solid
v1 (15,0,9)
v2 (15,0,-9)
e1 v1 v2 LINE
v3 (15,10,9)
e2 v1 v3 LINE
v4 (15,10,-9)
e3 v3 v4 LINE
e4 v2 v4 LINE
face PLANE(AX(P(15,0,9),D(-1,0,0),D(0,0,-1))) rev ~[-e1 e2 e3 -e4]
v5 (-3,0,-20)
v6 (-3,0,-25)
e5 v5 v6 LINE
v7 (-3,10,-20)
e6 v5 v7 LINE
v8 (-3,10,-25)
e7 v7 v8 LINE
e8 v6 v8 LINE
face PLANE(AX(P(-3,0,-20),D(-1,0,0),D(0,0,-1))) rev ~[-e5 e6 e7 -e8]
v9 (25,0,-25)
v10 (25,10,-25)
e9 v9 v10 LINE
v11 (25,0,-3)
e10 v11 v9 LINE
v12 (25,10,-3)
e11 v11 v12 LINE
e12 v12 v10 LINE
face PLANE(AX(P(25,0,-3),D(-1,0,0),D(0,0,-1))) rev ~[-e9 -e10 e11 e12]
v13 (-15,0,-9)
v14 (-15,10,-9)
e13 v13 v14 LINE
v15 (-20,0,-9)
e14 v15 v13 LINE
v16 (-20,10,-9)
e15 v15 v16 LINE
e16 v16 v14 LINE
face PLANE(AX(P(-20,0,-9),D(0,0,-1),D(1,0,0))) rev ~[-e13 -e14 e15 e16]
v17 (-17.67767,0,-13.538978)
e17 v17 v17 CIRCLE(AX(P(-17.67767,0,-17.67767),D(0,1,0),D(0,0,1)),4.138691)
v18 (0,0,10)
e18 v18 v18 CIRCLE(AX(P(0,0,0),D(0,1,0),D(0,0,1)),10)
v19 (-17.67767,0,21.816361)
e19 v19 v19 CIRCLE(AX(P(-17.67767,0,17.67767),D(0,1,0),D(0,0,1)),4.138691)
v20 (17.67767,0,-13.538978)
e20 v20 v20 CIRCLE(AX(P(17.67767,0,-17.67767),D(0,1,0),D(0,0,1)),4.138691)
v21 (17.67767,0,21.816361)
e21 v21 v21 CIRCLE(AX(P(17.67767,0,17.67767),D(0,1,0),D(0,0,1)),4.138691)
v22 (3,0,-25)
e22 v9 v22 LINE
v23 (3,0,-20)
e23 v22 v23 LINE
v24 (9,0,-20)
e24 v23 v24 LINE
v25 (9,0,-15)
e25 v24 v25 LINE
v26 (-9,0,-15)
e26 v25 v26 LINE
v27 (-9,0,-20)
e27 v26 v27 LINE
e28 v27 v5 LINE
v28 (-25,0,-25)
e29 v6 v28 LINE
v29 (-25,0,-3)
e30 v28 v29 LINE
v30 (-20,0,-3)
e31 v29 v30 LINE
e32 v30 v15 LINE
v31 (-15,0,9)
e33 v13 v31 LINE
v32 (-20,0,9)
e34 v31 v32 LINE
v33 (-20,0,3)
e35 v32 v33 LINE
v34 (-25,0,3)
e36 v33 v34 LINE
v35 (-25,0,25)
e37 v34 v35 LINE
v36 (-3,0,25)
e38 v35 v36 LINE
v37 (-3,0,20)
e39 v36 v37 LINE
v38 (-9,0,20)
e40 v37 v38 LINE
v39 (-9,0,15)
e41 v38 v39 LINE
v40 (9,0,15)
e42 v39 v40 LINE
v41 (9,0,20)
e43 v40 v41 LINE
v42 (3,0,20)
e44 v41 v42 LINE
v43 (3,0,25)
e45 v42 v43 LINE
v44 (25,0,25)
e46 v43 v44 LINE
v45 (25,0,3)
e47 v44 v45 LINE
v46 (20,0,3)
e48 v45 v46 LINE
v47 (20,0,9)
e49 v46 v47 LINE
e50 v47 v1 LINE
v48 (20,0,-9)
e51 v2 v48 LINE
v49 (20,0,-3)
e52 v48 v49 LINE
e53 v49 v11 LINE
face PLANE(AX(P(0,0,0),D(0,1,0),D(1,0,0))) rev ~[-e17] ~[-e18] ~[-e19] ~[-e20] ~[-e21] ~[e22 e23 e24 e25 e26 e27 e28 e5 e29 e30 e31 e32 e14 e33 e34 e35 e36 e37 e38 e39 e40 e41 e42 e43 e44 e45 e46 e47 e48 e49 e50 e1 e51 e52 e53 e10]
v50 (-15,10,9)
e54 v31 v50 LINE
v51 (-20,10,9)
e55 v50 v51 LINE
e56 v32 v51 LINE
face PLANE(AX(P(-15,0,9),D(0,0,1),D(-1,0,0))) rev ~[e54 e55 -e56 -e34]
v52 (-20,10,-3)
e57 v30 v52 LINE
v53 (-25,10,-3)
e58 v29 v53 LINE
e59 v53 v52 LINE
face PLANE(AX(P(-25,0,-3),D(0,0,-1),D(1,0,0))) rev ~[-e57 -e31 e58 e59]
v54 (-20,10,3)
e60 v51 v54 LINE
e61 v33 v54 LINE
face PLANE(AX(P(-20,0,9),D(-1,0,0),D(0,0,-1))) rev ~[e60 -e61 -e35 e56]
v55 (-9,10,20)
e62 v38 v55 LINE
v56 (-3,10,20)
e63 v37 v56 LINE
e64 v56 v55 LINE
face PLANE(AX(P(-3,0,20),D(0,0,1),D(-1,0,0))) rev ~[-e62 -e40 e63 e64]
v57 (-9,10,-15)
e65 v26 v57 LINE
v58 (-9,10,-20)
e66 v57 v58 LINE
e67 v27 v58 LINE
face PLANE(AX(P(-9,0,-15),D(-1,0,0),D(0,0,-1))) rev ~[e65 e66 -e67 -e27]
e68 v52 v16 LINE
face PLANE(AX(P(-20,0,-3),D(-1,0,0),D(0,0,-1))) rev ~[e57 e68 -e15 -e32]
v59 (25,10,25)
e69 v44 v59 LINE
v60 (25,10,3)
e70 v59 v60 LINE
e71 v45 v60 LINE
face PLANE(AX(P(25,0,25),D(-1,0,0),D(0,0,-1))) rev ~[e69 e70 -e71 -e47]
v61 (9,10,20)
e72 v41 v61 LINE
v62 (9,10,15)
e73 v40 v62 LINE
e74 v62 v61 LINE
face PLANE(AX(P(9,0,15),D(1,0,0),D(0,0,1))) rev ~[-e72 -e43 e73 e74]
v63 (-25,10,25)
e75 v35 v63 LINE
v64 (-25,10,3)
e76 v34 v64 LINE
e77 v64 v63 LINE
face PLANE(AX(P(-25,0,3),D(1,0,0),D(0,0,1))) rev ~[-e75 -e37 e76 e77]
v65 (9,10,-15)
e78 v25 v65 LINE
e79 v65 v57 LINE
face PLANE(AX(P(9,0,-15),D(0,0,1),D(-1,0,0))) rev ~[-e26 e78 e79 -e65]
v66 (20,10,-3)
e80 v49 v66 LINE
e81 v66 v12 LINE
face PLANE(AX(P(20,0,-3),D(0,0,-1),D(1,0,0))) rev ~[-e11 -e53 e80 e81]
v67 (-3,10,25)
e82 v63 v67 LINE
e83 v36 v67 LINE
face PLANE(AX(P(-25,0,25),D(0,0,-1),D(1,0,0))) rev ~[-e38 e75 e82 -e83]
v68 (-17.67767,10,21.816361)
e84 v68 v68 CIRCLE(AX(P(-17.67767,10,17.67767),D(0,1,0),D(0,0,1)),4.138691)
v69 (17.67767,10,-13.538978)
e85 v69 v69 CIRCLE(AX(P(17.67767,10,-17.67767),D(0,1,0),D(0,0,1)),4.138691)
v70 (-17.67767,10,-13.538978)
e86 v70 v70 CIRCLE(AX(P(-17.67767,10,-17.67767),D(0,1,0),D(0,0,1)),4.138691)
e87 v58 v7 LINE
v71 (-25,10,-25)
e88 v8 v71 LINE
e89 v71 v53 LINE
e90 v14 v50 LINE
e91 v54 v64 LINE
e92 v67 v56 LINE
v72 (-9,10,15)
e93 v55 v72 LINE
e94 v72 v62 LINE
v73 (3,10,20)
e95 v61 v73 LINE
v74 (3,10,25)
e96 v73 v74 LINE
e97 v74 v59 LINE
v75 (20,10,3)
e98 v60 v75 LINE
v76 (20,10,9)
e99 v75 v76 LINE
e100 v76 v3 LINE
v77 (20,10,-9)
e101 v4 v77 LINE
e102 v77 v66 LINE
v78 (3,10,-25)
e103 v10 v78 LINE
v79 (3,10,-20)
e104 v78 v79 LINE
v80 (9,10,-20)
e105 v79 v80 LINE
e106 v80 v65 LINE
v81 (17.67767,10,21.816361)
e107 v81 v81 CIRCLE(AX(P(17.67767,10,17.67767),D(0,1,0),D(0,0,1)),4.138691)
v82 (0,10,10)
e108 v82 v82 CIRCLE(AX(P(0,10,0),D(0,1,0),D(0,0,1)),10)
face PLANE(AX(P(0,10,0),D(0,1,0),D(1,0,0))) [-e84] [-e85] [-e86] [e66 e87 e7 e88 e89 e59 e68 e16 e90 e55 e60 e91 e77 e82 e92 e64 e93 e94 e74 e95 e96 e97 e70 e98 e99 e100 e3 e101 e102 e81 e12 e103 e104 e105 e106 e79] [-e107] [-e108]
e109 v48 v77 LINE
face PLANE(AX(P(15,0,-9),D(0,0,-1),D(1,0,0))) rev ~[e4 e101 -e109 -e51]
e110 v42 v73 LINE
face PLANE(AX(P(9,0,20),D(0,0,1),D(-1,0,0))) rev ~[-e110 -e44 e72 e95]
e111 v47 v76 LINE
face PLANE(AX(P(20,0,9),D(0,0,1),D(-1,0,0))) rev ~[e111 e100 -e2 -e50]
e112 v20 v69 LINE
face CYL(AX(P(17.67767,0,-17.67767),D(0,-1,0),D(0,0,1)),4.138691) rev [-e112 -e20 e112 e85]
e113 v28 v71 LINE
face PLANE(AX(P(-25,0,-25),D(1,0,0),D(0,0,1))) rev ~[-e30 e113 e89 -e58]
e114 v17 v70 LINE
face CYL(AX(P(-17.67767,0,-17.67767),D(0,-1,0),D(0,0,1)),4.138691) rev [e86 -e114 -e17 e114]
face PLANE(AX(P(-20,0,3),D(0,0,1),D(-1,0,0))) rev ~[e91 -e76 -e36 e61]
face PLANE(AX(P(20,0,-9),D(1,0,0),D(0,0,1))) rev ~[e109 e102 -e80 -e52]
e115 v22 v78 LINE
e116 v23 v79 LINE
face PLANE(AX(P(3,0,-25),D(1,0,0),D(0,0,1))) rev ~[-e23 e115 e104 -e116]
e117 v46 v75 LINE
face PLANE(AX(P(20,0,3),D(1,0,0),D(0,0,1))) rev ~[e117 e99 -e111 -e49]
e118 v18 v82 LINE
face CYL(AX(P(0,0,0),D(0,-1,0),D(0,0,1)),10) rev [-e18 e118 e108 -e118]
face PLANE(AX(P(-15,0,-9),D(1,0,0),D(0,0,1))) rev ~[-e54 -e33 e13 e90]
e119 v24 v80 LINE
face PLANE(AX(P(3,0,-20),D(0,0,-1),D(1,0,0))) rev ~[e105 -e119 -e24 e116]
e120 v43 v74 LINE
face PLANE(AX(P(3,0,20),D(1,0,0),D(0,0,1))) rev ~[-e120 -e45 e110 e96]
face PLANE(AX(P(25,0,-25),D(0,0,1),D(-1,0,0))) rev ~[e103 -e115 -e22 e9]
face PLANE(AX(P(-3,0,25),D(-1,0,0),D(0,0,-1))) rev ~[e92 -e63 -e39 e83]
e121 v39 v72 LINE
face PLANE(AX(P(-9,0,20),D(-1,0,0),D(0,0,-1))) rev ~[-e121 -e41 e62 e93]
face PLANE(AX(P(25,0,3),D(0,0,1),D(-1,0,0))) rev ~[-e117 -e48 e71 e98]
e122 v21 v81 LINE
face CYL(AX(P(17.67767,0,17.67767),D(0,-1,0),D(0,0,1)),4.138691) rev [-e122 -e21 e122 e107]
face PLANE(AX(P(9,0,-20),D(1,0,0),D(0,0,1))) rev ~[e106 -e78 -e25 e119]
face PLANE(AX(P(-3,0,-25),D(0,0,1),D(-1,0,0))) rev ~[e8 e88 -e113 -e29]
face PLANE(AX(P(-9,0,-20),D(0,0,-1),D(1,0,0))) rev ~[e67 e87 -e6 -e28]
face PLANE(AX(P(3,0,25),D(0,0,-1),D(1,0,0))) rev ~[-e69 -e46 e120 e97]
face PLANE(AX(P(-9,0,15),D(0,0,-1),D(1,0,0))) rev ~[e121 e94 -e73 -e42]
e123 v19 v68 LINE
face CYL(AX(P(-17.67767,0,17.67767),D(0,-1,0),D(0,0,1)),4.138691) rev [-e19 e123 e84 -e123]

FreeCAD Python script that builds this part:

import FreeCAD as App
import Part
import Sketcher

V = App.Vector
Q = App.Units.Quantity


def add_polygon(sketch, points):
    """Adds a closed chain of lines whose ends are joined by coincident constraints."""
    first, n = sketch.GeometryCount, len(points)
    for a, b in zip(points, points[1:] + points[:1]):
        sketch.addGeometry(Part.LineSegment(App.Vector(*a, 0), App.Vector(*b, 0)), False)
    for i in range(n):
        sketch.addConstraint(Sketcher.Constraint("Coincident", first + i, 2, first + (i + 1) % n, 1))

doc = App.newDocument("Part")
body = doc.addObject("PartDesign::Body", "Body")

sketch1 = body.newObject("Sketcher::SketchObject", "Sketch")
sketch1.AttachmentSupport = (doc.getObject("XZ_Plane"), [""])
sketch1.MapMode = "FlatFace"
add_polygon(sketch1, [(-25, 3), (-25, 25), (-3, 25), (-3, 20), (-9, 20), (-9, 15), (9, 15), (9, 20), (3, 20), (3, 25), (25, 25), (25, 3), (20, 3), (20, 9), (15, 9), (15, -9), (20, -9), (20, -3), (25, -3), (25, -25), (3, -25), (3, -20), (9, -20), (9, -15), (-9, -15), (-9, -20), (-3, -20), (-3, -25), (-25, -25), (-25, -3), (-20, -3), (-20, -9), (-15, -9), (-15, 9), (-20, 9), (-20, 3)])
sketch1.addGeometry(Part.Circle(V(-17.67767, 17.67767, 0), V(0, 0, 1), 4.138691), False)
sketch1.addGeometry(Part.Circle(V(17.67767, 17.67767, 0), V(0, 0, 1), 4.138691), False)
sketch1.addGeometry(Part.Circle(V(-17.67767, -17.67767, 0), V(0, 0, 1), 4.138691), False)
sketch1.addGeometry(Part.Circle(V(0, 0, 0), V(0, 0, 1), 10), False)
sketch1.addGeometry(Part.Circle(V(17.67767, -17.67767, 0), V(0, 0, 1), 4.138691), False)
sketch1.addConstraint([
    Sketcher.Constraint("Vertical", 0),
    Sketcher.Constraint("Horizontal", 1),
    Sketcher.Constraint("Vertical", 2),
    Sketcher.Constraint("Horizontal", 3),
    Sketcher.Constraint("Vertical", 4),
    Sketcher.Constraint("Horizontal", 5),
    Sketcher.Constraint("Vertical", 6),
    Sketcher.Constraint("Horizontal", 7),
    Sketcher.Constraint("Vertical", 8),
    Sketcher.Constraint("Horizontal", 9),
    Sketcher.Constraint("Vertical", 10),
    Sketcher.Constraint("Horizontal", 11),
    Sketcher.Constraint("Vertical", 12),
    Sketcher.Constraint("Horizontal", 13),
    Sketcher.Constraint("Vertical", 14),
    Sketcher.Constraint("Horizontal", 15),
    Sketcher.Constraint("Vertical", 16),
    Sketcher.Constraint("Horizontal", 17),
    Sketcher.Constraint("Vertical", 18),
    Sketcher.Constraint("Horizontal", 19),
    Sketcher.Constraint("Vertical", 20),
    Sketcher.Constraint("Horizontal", 21),
    Sketcher.Constraint("Vertical", 22),
    Sketcher.Constraint("Horizontal", 23),
    Sketcher.Constraint("Vertical", 24),
    Sketcher.Constraint("Horizontal", 25),
    Sketcher.Constraint("Vertical", 26),
    Sketcher.Constraint("Horizontal", 27),
    Sketcher.Constraint("Vertical", 28),
    Sketcher.Constraint("Horizontal", 29),
    Sketcher.Constraint("Vertical", 30),
    Sketcher.Constraint("Horizontal", 31),
    Sketcher.Constraint("Vertical", 32),
    Sketcher.Constraint("Horizontal", 33),
    Sketcher.Constraint("Vertical", 34),
    Sketcher.Constraint("Horizontal", 35),
    Sketcher.Constraint("Coincident", 39, 3, -1, 1),
    Sketcher.Constraint("Equal", 36, 37),
    Sketcher.Constraint("Equal", 37, 38),
    Sketcher.Constraint("Equal", 38, 40),
    Sketcher.Constraint("Symmetric", 37, 3, 38, 3, -1, 1),
    Sketcher.Constraint("Symmetric", 36, 3, 40, 3, -1, 1),
    Sketcher.Constraint("Symmetric", 0, 2, 18, 2, -1, 1),
    Sketcher.Constraint("Symmetric", 2, 2, 20, 2, -1, 1),
    Sketcher.Constraint("Symmetric", 4, 2, 22, 2, -1, 1),
    Sketcher.Constraint("Symmetric", 6, 2, 24, 2, -1, 1),
    Sketcher.Constraint("Symmetric", 8, 2, 26, 2, -1, 1),
    Sketcher.Constraint("Symmetric", 10, 2, 28, 2, -1, 1),
    Sketcher.Constraint("Symmetric", 12, 2, 30, 2, -1, 1),
    Sketcher.Constraint("Symmetric", 14, 2, 32, 2, -1, 1),
    Sketcher.Constraint("Symmetric", 16, 2, 34, 2, -1, 1),
    Sketcher.Constraint("Symmetric", 36, 3, 37, 3, -2),
    Sketcher.Constraint("Symmetric", 3, 2, 6, 2, -2),
    Sketcher.Constraint("Symmetric", 1, 2, 8, 2, -2),
    Sketcher.Constraint("Symmetric", 17, 2, 28, 2, -2),
    Sketcher.Constraint("Symmetric", 15, 2, 30, 2, -2),
    Sketcher.Constraint("Equal", 11, 13),
    Sketcher.Constraint("Equal", 27, 0),
    Sketcher.Constraint("Equal", 35, 2),
    Sketcher.Constraint("Equal", 2, 4),
    Sketcher.Constraint("Equal", 25, 12),
    Sketcher.Constraint("Equal", 23, 14),
    Sketcher.Constraint("Diameter", 39, Q("20 mm")),
    Sketcher.Constraint("DistanceX", 1, 1, 1, 2, Q("22 mm")),
    Sketcher.Constraint("DistanceX", 3, 2, 3, 1, Q("6 mm")),
    Sketcher.Constraint("DistanceX", 5, 1, 5, 2, Q("18 mm")),
    Sketcher.Constraint("DistanceX", 11, 2, 11, 1, Q("5 mm")),
    Sketcher.Constraint("Diameter", 36, Q("8.277382 mm")),
    Sketcher.Constraint("DistanceX", 36, 3, -1, 1, Q("17.67767 mm")),
    Sketcher.Constraint("DistanceY", -1, 1, 36, 3, Q("17.67767 mm")),
])
pad1 = body.newObject("PartDesign::Pad", "Pad")
pad1.Profile = sketch1
pad1.Length = 10
pad1.Reversed = True

doc.recompute()
